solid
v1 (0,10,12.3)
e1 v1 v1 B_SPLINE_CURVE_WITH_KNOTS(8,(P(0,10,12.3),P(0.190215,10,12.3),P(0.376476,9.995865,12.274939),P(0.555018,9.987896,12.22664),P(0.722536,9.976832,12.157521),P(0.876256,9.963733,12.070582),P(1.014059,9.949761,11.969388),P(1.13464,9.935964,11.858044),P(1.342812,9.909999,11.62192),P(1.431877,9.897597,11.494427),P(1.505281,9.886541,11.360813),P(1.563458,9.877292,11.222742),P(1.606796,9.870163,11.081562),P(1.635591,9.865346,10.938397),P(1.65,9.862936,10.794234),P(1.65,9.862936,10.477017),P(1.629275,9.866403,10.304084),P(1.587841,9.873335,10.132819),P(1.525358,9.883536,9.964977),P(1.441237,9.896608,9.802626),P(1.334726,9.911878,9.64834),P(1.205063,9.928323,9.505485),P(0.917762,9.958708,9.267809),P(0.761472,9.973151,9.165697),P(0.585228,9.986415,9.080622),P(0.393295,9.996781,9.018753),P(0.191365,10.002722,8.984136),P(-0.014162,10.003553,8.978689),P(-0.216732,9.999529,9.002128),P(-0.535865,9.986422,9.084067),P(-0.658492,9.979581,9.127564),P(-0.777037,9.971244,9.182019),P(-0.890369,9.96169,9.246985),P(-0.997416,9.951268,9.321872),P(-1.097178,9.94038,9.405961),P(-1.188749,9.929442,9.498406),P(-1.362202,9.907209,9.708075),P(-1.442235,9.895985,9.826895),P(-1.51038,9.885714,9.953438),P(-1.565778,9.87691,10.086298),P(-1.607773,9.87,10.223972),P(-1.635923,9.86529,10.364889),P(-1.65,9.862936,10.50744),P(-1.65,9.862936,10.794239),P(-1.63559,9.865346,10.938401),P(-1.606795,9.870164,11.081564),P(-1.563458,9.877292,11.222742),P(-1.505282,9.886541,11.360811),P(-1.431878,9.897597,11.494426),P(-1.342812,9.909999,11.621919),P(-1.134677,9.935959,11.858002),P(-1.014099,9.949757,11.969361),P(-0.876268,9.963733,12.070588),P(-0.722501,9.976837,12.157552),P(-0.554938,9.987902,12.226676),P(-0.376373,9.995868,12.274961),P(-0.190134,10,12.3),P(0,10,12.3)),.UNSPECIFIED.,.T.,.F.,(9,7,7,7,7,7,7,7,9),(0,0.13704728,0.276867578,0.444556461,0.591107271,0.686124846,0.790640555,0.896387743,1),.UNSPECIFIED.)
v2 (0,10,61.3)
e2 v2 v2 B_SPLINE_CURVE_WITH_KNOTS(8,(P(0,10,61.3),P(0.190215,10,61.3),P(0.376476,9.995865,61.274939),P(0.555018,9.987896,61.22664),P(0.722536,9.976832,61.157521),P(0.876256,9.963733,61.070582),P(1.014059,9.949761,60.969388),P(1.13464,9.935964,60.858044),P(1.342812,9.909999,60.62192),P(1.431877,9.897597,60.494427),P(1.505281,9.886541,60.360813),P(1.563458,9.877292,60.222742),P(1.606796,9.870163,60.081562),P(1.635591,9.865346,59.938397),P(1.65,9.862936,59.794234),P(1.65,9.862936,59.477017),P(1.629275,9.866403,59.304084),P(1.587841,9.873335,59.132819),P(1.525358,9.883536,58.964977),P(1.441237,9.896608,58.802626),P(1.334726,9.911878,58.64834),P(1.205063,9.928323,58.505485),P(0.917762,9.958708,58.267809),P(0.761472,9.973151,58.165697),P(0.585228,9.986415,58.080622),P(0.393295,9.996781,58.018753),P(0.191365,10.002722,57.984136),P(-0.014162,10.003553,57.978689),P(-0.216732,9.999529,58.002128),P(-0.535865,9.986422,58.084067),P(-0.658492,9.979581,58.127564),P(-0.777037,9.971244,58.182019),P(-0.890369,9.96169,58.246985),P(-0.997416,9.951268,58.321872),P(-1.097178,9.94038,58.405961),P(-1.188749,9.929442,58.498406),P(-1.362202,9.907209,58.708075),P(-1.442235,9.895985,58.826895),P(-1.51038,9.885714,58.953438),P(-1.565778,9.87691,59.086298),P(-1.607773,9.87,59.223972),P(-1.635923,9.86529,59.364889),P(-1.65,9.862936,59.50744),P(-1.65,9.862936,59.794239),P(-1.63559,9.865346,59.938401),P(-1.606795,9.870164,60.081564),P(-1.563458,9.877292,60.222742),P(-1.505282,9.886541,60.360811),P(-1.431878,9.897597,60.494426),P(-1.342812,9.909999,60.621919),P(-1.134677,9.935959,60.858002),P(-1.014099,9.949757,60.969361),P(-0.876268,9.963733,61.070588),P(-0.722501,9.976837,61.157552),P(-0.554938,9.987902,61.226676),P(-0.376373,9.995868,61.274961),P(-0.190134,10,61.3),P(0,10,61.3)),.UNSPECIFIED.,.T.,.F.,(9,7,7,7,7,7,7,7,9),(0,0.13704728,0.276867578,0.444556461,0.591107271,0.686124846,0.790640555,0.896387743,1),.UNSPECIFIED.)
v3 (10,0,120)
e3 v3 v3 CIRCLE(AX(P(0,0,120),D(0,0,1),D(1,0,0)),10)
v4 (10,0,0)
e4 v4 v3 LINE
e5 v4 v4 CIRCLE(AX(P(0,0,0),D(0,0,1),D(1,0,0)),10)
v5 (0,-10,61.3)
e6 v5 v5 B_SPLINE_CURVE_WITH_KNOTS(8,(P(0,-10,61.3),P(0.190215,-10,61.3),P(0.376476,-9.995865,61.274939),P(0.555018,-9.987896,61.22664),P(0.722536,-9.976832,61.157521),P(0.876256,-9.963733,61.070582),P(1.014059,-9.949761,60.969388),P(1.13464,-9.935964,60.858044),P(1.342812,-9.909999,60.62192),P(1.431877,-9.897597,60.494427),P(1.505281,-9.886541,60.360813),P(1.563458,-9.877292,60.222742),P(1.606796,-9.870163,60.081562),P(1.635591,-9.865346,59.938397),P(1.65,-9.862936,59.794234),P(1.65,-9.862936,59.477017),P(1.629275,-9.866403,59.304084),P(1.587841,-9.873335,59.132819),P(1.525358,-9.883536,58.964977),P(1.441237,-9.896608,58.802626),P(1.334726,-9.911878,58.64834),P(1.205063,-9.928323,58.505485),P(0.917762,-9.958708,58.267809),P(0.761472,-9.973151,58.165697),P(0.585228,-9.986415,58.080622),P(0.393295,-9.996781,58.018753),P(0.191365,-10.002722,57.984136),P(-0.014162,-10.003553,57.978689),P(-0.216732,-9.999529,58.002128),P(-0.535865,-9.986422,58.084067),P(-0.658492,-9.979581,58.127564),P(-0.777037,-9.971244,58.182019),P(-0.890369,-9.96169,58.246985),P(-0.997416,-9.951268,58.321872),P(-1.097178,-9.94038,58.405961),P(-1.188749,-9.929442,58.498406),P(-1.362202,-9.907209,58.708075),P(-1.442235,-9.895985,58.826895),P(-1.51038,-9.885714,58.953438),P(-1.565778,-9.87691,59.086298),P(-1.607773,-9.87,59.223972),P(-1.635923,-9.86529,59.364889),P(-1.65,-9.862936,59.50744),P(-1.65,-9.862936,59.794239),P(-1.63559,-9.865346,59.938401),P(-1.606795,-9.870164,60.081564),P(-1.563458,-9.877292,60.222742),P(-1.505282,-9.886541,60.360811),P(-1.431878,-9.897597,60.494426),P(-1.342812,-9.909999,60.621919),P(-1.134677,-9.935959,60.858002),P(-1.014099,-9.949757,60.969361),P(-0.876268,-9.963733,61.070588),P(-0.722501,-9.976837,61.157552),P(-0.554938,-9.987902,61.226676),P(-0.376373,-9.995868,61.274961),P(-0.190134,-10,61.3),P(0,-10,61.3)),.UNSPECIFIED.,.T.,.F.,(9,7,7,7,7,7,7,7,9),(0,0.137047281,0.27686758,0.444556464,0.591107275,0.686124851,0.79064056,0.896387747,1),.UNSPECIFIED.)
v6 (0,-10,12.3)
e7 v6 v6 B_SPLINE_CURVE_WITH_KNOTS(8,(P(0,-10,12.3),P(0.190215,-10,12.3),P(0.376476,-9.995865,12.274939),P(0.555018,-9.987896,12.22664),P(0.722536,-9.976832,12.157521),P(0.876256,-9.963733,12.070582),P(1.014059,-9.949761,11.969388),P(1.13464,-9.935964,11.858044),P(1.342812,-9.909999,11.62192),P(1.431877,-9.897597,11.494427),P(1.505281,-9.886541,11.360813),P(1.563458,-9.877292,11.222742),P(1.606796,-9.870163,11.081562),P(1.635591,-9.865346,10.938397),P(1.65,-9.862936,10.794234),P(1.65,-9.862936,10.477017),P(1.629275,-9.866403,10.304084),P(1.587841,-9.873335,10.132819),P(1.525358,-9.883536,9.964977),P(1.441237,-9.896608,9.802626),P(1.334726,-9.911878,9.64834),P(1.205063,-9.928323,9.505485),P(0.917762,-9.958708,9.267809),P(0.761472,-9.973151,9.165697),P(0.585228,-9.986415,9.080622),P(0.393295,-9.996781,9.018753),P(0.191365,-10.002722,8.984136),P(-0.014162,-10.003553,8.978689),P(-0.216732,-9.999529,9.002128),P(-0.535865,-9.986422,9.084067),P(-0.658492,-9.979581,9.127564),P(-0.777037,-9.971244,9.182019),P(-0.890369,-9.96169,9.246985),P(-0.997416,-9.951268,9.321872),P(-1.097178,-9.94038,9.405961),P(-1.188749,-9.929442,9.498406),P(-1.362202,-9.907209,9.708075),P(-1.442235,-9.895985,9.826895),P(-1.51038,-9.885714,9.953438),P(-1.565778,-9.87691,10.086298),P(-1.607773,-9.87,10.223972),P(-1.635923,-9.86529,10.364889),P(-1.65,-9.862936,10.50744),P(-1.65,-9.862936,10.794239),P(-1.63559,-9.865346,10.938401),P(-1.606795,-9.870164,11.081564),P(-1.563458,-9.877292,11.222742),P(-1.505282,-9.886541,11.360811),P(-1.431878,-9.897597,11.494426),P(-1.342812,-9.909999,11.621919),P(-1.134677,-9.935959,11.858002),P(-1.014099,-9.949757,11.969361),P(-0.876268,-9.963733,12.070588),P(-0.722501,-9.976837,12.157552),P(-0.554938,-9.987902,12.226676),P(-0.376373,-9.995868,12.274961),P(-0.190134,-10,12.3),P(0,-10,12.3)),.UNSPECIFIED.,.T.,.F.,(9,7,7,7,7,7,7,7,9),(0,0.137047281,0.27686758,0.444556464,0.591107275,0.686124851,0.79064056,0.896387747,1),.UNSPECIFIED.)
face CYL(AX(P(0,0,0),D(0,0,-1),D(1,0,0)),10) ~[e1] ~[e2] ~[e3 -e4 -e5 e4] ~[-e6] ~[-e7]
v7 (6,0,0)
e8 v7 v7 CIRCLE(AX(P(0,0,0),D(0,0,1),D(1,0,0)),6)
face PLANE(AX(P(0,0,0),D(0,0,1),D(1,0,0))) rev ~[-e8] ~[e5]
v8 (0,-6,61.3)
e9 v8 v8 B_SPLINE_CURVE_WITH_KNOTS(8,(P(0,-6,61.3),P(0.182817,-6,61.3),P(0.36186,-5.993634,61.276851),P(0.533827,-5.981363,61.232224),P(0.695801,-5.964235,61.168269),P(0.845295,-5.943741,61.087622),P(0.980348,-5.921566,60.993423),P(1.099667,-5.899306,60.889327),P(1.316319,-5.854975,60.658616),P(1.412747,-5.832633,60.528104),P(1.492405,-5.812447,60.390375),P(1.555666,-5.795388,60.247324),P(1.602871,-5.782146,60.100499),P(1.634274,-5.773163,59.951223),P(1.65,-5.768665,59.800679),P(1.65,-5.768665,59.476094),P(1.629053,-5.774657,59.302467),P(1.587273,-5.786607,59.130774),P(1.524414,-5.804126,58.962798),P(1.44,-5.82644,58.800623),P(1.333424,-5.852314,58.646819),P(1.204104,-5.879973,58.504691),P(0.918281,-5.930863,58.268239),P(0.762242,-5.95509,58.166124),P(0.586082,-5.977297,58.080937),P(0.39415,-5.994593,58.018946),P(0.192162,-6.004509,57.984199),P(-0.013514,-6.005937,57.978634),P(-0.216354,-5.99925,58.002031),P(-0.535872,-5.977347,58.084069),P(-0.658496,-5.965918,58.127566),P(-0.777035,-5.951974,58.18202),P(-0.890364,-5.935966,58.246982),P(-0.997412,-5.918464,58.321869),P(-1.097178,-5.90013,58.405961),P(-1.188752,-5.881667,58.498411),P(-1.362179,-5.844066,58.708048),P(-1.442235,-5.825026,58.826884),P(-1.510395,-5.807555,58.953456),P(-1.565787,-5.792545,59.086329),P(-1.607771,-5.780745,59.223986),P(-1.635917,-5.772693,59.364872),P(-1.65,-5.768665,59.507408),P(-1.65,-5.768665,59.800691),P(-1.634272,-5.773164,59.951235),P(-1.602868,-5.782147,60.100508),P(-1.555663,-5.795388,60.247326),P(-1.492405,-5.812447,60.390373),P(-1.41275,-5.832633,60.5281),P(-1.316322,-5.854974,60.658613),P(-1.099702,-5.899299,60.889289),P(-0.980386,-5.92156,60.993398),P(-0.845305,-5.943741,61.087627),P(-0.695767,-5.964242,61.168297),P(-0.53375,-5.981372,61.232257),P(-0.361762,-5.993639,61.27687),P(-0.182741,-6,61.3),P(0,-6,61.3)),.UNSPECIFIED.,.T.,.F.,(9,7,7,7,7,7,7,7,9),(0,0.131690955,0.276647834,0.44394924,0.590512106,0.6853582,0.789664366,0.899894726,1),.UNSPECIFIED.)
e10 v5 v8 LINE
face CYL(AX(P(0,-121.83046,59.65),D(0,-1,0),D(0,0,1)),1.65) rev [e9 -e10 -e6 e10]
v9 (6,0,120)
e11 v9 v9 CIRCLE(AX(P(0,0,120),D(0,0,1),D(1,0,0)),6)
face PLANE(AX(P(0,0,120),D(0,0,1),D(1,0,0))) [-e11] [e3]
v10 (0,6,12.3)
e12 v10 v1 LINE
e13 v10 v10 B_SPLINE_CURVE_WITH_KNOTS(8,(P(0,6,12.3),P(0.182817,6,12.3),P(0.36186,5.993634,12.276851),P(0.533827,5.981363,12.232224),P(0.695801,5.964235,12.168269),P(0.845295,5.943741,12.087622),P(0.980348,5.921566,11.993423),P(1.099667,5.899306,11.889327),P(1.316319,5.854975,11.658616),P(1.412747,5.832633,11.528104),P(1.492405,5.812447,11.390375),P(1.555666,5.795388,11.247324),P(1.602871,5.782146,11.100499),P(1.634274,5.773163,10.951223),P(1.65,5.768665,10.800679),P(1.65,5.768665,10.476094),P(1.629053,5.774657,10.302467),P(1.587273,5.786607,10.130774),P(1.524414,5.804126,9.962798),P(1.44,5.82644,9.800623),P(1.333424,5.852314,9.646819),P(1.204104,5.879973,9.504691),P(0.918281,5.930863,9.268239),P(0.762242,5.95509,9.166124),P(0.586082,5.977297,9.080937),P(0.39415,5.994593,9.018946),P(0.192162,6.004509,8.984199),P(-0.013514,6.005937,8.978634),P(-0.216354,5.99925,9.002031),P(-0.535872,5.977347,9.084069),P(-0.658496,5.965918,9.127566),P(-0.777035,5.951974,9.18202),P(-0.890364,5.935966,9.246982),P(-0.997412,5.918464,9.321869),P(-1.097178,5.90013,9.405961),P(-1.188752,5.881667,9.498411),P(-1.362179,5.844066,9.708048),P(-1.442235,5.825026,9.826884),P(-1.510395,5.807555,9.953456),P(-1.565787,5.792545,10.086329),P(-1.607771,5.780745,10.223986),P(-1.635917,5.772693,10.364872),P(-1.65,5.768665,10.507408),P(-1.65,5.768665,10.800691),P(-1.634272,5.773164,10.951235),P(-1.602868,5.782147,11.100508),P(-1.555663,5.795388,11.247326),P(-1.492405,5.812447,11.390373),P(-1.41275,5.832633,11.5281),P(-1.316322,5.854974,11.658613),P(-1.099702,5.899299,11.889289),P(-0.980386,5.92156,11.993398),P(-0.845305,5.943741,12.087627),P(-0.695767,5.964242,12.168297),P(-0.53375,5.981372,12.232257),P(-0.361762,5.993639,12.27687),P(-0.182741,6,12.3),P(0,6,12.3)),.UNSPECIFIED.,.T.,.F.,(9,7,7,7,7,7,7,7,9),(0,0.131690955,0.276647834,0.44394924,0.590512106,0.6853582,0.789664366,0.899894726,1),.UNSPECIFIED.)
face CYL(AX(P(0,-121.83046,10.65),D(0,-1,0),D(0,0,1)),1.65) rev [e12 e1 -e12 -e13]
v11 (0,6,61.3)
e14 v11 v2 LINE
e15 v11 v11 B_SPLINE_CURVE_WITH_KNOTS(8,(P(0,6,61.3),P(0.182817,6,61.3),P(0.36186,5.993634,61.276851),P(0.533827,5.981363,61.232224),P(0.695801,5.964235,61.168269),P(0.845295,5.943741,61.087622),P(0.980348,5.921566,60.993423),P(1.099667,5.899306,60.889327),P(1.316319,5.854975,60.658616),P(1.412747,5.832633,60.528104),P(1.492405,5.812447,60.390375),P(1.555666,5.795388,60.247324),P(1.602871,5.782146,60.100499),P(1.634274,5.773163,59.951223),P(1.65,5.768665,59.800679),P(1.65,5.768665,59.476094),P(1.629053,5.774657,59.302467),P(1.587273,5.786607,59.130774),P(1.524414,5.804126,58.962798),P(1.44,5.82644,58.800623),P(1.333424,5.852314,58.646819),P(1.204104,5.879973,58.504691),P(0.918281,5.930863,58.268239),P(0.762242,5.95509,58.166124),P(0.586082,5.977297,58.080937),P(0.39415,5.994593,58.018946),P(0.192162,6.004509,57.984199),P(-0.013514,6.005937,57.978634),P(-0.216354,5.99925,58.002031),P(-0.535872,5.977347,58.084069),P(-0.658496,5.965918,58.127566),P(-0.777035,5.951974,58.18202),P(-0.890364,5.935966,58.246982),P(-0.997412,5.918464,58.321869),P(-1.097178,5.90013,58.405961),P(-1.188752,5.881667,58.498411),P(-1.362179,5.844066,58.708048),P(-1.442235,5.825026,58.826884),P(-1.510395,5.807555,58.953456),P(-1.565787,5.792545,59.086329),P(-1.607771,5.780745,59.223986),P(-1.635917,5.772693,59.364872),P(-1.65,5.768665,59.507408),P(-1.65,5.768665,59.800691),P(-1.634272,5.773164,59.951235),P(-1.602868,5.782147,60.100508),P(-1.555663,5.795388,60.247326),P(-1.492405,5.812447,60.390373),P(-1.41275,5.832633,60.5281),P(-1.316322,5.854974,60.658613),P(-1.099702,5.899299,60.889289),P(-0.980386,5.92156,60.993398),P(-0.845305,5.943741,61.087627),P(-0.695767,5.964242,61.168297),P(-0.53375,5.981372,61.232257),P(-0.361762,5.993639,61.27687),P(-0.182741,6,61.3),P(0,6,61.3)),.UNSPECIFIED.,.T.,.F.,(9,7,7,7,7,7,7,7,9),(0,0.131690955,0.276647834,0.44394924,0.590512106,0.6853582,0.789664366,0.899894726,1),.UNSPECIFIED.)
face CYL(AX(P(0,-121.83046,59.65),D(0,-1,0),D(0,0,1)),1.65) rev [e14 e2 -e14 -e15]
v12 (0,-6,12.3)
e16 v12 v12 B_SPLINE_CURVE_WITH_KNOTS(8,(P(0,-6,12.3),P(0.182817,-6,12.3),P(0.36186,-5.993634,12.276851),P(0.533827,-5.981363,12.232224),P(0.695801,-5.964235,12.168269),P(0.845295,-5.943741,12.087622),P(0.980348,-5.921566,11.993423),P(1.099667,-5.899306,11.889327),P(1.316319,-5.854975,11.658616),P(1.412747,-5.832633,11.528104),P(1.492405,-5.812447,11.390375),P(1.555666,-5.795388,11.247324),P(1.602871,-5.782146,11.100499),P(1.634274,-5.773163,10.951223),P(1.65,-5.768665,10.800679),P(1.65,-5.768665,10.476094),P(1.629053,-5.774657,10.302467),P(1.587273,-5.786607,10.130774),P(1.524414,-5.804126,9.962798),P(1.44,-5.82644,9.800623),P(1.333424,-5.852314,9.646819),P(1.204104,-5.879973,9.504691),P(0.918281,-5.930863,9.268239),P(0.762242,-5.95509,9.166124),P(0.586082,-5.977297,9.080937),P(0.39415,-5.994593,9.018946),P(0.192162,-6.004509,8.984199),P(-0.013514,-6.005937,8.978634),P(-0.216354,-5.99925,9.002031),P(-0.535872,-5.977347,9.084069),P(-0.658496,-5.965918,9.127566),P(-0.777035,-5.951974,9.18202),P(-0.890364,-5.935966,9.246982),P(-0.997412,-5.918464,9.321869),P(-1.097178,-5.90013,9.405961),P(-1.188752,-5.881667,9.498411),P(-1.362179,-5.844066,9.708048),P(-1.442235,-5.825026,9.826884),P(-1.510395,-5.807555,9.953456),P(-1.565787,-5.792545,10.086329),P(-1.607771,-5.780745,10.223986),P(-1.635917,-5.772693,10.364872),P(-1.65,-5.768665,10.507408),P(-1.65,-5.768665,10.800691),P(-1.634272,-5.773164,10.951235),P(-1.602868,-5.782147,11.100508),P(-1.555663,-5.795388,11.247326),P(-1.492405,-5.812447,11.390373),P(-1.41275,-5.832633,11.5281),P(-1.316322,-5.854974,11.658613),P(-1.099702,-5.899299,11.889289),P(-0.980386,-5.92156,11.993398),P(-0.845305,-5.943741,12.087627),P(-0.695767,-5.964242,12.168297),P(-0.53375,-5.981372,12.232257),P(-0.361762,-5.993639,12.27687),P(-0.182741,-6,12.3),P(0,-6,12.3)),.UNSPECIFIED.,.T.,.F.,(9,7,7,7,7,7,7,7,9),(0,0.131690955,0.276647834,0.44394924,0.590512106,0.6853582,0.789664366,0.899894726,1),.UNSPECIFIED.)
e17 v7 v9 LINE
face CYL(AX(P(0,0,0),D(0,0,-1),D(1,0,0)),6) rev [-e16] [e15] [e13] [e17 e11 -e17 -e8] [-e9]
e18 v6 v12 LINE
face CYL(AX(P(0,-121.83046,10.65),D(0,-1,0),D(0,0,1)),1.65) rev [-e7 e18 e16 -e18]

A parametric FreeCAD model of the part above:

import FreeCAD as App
import Part
import Sketcher

doc = App.newDocument("Part")
body = doc.addObject("PartDesign::Body", "Body")

sketch1 = body.newObject("Sketcher::SketchObject", "Sketch")
sketch1.AttachmentSupport = (doc.getObject("XY_Plane"), [""])
sketch1.MapMode = "FlatFace"
sketch1.addGeometry([
    Part.Circle(App.Vector(0, 0, 0), App.Vector(0, 0, 1), 10),
    Part.Circle(App.Vector(0, 0, 0), App.Vector(0, 0, 1), 6),
], False)
sketch1.addConstraint([
    Sketcher.Constraint("Coincident", 0, 3, -1, 1),
    Sketcher.Constraint("Coincident", 1, 3, -1, 1),
    Sketcher.Constraint("Diameter", 0, 20.0),
    Sketcher.Constraint("Diameter", 1, 12.0),
])
pad1 = body.newObject("PartDesign::Pad", "Pad")
pad1.Profile = sketch1
pad1.Length = 120

sketch2 = body.newObject("Sketcher::SketchObject", "Sketch001")
sketch2.AttachmentSupport = (doc.getObject("XZ_Plane"), [""])
sketch2.MapMode = "FlatFace"
sketch2.addGeometry([
    Part.Circle(App.Vector(0, 10.65, 0), App.Vector(0, 0, 1), 1.65),
    Part.Circle(App.Vector(0, 59.65, 0), App.Vector(0, 0, 1), 1.65),
], False)
sketch2.addConstraint([
    Sketcher.Constraint("Equal", 0, 1),
    Sketcher.Constraint("PointOnObject", 0, 3, -2),
    Sketcher.Constraint("PointOnObject", 1, 3, -2),
    Sketcher.Constraint("Diameter", 0, 3.3),
    Sketcher.Constraint("DistanceY", 0, 3, 1, 3, 49.0),
    Sketcher.Constraint("DistanceY", -1, 1, 0, 3, 10.65),
])
pocket1 = body.newObject("PartDesign::Pocket", "Pocket")
pocket1.Profile = sketch2
pocket1.Type = "ThroughAll"
pocket1.Midplane = True

doc.recompute()
